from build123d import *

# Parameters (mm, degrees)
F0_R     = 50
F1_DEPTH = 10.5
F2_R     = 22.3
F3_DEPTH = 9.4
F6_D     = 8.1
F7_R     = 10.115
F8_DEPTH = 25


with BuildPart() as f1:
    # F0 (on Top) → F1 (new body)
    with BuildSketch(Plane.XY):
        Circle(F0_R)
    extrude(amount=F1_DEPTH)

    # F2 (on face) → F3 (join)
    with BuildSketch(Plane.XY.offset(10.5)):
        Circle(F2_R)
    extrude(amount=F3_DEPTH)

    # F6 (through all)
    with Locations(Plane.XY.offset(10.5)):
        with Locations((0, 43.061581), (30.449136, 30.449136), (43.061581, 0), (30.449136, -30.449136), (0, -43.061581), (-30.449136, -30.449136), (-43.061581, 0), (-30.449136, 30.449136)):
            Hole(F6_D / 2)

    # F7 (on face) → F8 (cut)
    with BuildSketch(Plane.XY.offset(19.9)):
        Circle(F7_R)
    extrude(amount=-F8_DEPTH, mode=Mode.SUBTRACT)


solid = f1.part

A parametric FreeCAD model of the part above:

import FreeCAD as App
import Part
import Sketcher
Q = App.Units.Quantity

doc = App.newDocument("Part")
body = doc.addObject("PartDesign::Body", "Body")

sketch1 = doc.addObject("Sketcher::SketchObject", "Sketch")
body.addObject(sketch1)
sketch1.AttachmentSupport = (doc.XY_Plane, [""])
sketch1.MapMode = "FlatFace"
sketch1.addGeometry(Part.Circle(App.Vector(0, 0, 0), App.Vector(0, 0, 1), 50), False)
sketch1.addConstraint(Sketcher.Constraint("Coincident", 0, 3, -1, 1))
sketch1.addConstraint(Sketcher.Constraint("Diameter", 0, Q("100 mm")))
pad1 = doc.addObject("PartDesign::Pad", "Pad")
body.addObject(pad1)
pad1.Profile = sketch1
pad1.Length = 10.5

sketch2 = doc.addObject("Sketcher::SketchObject", "Sketch001")
body.addObject(sketch2)
sketch2.AttachmentSupport = (doc.XY_Plane, [""])
sketch2.MapMode = "FlatFace"
sketch2.AttachmentOffset = App.Placement(App.Vector(0, 0, 10.5), App.Rotation())
sketch2.addGeometry(Part.Circle(App.Vector(0, 0, 0), App.Vector(0, 0, 1), 22), False)
sketch2.addConstraint(Sketcher.Constraint("Coincident", 0, 3, -1, 1))
sketch2.addConstraint(Sketcher.Constraint("Diameter", 0, Q("44.6 mm")))
pad2 = doc.addObject("PartDesign::Pad", "Pad001")
body.addObject(pad2)
pad2.Profile = sketch2
pad2.Length = 9.4

sketch3 = doc.addObject("Sketcher::SketchObject", "Sketch002")
body.addObject(sketch3)
sketch3.AttachmentSupport = (doc.XY_Plane, [""])
sketch3.MapMode = "FlatFace"
sketch3.AttachmentOffset = App.Placement(App.Vector(0, 0, 10.5), App.Rotation())
sketch3.addGeometry(Part.Circle(App.Vector(0, 43.1, 0), App.Vector(0, 0, 1), 4), False)
sketch3.addGeometry(Part.Circle(App.Vector(30.4, 30.4, 0), App.Vector(0, 0, 1), 4), False)
sketch3.addGeometry(Part.Circle(App.Vector(43.1, 0, 0), App.Vector(0, 0, 1), 4), False)
sketch3.addGeometry(Part.Circle(App.Vector(30.4, -30.4, 0), App.Vector(0, 0, 1), 4), False)
sketch3.addGeometry(Part.Circle(App.Vector(0, -43.1, 0), App.Vector(0, 0, 1), 4), False)
sketch3.addGeometry(Part.Circle(App.Vector(-30.4, -30.4, 0), App.Vector(0, 0, 1), 4), False)
sketch3.addGeometry(Part.Circle(App.Vector(-43.1, 0, 0), App.Vector(0, 0, 1), 4), False)
sketch3.addGeometry(Part.Circle(App.Vector(-30.4, 30.4, 0), App.Vector(0, 0, 1), 4), False)
sketch3.addConstraint(Sketcher.Constraint("Equal", 0, 1))
sketch3.addConstraint(Sketcher.Constraint("Equal", 1, 2))
sketch3.addConstraint(Sketcher.Constraint("Equal", 2, 3))
sketch3.addConstraint(Sketcher.Constraint("Equal", 3, 4))
sketch3.addConstraint(Sketcher.Constraint("Equal", 4, 5))
sketch3.addConstraint(Sketcher.Constraint("Equal", 5, 6))
sketch3.addConstraint(Sketcher.Constraint("Equal", 6, 7))
sketch3.addConstraint(Sketcher.Constraint("Symmetric", 0, 3, 4, 3, -1, 1))
sketch3.addConstraint(Sketcher.Constraint("Symmetric", 1, 3, 5, 3, -1, 1))
sketch3.addConstraint(Sketcher.Constraint("Symmetric", 2, 3, 6, 3, -1, 1))
sketch3.addConstraint(Sketcher.Constraint("Symmetric", 3, 3, 7, 3, -1, 1))
sketch3.addConstraint(Sketcher.Constraint("Symmetric", 3, 3, 5, 3, -2))
sketch3.addConstraint(Sketcher.Constraint("PointOnObject", 0, 3, -2))
sketch3.addConstraint(Sketcher.Constraint("PointOnObject", 2, 3, -1))
sketch3.addConstraint(Sketcher.Constraint("Diameter", 0, Q("8.1 mm")))
sketch3.addConstraint(Sketcher.Constraint("DistanceY", -1, 1, 0, 3, Q("43.061581 mm")))
sketch3.addConstraint(Sketcher.Constraint("DistanceX", -1, 1, 2, 3, Q("43.061581 mm")))
sketch3.addConstraint(Sketcher.Constraint("DistanceX", -1, 1, 1, 3, Q("30.449136 mm")))
sketch3.addConstraint(Sketcher.Constraint("DistanceY", -1, 1, 1, 3, Q("30.449136 mm")))
doc.recompute()
hole = doc.addObject("PartDesign::Hole", "Hole")
body.addObject(hole)
hole.Profile = sketch3
hole.ThreadType = "None"
hole.Diameter = 8.1
hole.DepthType = "ThroughAll"

sketch4 = doc.addObject("Sketcher::SketchObject", "Sketch003")
body.addObject(sketch4)
sketch4.AttachmentSupport = (doc.XY_Plane, [""])
sketch4.MapMode = "FlatFace"
sketch4.AttachmentOffset = App.Placement(App.Vector(0, 0, 19.9), App.Rotation())
sketch4.addGeometry(Part.Circle(App.Vector(0, 0, 0), App.Vector(0, 0, 1), 10), False)
sketch4.addConstraint(Sketcher.Constraint("Coincident", 0, 3, -1, 1))
sketch4.addConstraint(Sketcher.Constraint("Diameter", 0, Q("20.23 mm")))
pocket1 = doc.addObject("PartDesign::Pocket", "Pocket")
body.addObject(pocket1)
pocket1.Profile = sketch4
pocket1.Length = 25

doc.recompute()
